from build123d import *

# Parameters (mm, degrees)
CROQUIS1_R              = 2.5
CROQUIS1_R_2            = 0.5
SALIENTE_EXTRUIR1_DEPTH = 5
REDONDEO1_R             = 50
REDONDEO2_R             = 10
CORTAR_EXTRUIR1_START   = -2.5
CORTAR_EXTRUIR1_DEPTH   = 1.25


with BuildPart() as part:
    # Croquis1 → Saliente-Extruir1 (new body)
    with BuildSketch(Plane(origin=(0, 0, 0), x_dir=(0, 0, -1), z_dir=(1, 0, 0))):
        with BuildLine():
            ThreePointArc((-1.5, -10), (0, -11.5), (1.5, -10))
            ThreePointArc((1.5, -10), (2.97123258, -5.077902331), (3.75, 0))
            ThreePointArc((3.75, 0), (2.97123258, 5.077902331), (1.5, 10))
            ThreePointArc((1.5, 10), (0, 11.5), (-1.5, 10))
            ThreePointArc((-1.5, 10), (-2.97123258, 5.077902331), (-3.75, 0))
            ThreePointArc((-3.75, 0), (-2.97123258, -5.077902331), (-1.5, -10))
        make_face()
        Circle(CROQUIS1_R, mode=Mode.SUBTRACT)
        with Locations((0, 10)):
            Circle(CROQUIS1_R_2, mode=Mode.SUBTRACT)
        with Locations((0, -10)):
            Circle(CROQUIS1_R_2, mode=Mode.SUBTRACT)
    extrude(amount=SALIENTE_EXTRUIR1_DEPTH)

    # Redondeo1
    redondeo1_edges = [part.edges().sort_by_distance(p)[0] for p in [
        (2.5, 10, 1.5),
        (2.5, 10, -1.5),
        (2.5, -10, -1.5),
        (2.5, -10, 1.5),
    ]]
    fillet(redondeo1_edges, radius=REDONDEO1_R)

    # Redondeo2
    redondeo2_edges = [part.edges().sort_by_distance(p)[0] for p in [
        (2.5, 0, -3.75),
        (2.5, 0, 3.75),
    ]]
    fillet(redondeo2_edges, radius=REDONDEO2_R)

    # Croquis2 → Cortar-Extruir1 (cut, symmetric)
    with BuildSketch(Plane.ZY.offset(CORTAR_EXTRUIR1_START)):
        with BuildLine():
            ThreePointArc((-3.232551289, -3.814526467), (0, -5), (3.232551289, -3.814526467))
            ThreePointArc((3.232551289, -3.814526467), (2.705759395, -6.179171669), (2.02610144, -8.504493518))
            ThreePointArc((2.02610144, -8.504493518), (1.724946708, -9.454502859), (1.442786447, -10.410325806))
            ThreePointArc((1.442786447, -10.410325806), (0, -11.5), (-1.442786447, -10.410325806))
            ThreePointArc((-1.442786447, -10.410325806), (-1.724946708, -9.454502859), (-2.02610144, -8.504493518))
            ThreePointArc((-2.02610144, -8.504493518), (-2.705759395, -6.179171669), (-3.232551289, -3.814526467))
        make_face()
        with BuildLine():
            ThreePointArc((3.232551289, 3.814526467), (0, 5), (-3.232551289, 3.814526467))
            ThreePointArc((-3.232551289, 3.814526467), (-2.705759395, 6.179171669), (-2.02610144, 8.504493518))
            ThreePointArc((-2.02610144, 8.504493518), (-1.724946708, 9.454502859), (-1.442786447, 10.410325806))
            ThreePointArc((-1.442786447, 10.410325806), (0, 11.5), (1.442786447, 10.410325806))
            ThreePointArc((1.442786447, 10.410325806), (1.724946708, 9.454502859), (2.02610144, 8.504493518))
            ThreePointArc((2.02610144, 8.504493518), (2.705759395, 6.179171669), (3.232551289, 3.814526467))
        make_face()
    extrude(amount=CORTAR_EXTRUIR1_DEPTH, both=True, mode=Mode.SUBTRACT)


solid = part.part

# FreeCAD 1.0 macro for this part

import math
import FreeCAD as App
import Part
import Sketcher
Q = App.Units.Quantity


def edges_at(feature, points):
    """Names of the edges that pass closest to the given points."""
    edges = feature.Shape.Edges
    near = lambda p: min(range(len(edges)), key=lambda i: edges[i].distToShape(Part.Vertex(*p))[0])
    return sorted({f"Edge{near(p) + 1}" for p in points})

doc = App.newDocument("Part")
body = doc.addObject("PartDesign::Body", "Body")

# Sketch on YZ plane
sketch1 = body.newObject("Sketcher::SketchObject", "Sketch")
sketch1.AttachmentSupport = (doc.getObject("YZ_Plane"), [""])
sketch1.MapMode = "FlatFace"
sketch1.addGeometry([
    Part.ArcOfCircle(Part.Circle(App.Vector(-10, 0, 0), App.Vector(0, 0, 1), 1.5), math.radians(90), math.radians(270)),  # 0
    Part.ArcOfCircle(Part.Circle(App.Vector(3.084201, 33.304783, 0), App.Vector(0, 0, 1), 37.182916), math.radians(-110.602803), math.radians(-94.757964)),  # 1
    Part.ArcOfCircle(Part.Circle(App.Vector(-3.084201, 33.304783, 0), App.Vector(0, 0, 1), 37.182916), math.radians(-85.242036), math.radians(-69.397197)),  # 2
    Part.ArcOfCircle(Part.Circle(App.Vector(10, 0, 0), App.Vector(0, 0, 1), 1.5), math.radians(-90), math.radians(90)),  # 3
    Part.ArcOfCircle(Part.Circle(App.Vector(-3.084201, -33.304783, 0), App.Vector(0, 0, 1), 37.182916), math.radians(69.397197), math.radians(85.242036)),  # 4
    Part.ArcOfCircle(Part.Circle(App.Vector(3.084201, -33.304783, 0), App.Vector(0, 0, 1), 37.182916), math.radians(94.757964), math.radians(110.602803)),  # 5
    Part.Circle(App.Vector(-10, 0, 0), App.Vector(0, 0, 1), 0.5),  # 6
    Part.Circle(App.Vector(0, 0, 0), App.Vector(0, 0, 1), 2.5),  # 7
    Part.Circle(App.Vector(10, 0, 0), App.Vector(0, 0, 1), 0.5),  # 8
], False)
sketch1.addConstraint([
    Sketcher.Constraint("Coincident", 0, 2, 1, 1),
    Sketcher.Constraint("Coincident", 1, 2, 2, 1),
    Sketcher.Constraint("Coincident", 2, 2, 3, 1),
    Sketcher.Constraint("Coincident", 3, 2, 4, 1),
    Sketcher.Constraint("Coincident", 4, 2, 5, 1),
    Sketcher.Constraint("Coincident", 5, 2, 0, 1),
    Sketcher.Constraint("Coincident", 7, 3, -1, 1),
    Sketcher.Constraint("Coincident", 6, 3, 0, 3),
    Sketcher.Constraint("Coincident", 8, 3, 3, 3),
    Sketcher.Constraint("Equal", 1, 2),
    Sketcher.Constraint("Equal", 0, 3),
    Sketcher.Constraint("Equal", 2, 4),
    Sketcher.Constraint("Equal", 4, 5),
    Sketcher.Constraint("Equal", 6, 8),
    Sketcher.Constraint("Symmetric", 0, 3, 3, 3, -1, 1),
    Sketcher.Constraint("Symmetric", 1, 3, 4, 3, -1, 1),
    Sketcher.Constraint("Symmetric", 2, 3, 5, 3, -1, 1),
    Sketcher.Constraint("Symmetric", 1, 3, 2, 3, -2),
    Sketcher.Constraint("PointOnObject", 0, 3, -1),
    Sketcher.Constraint("Vertical", 6, 3, 0, 2),
    Sketcher.Constraint("Diameter", 6, Q("1 mm")),
    Sketcher.Constraint("Diameter", 7, Q("5 mm")),
    Sketcher.Constraint("Radius", 0, Q("1.5 mm")),
    Sketcher.Constraint("DistanceX", 0, 3, -1, 1, Q("10 mm")),
    Sketcher.Constraint("DistanceY", 1, 2, 4, 2, Q("7.5 mm")),
    Sketcher.Constraint("Radius", 1, Q("37.182916 mm")),
])
pad1 = body.newObject("PartDesign::Pad", "Pad")
pad1.Profile = sketch1
pad1.Length = 5
doc.recompute()

fillet = body.newObject("PartDesign::Fillet", "Fillet")
fillet.Base = (pad1, edges_at(pad1, [
    (2.5, 10, 1.5),
    (2.5, 10, -1.5),
    (2.5, -10, -1.5),
    (2.5, -10, 1.5),
]))
fillet.Radius = 50
doc.recompute()

fillet2 = body.newObject("PartDesign::Fillet", "Fillet001")
fillet2.Base = (fillet, edges_at(fillet, [(2.5, 0, -3.75), (2.5, 0, 3.75)]))
fillet2.Radius = 10

# Sketch on YZ plane
sketch2 = body.newObject("Sketcher::SketchObject", "Sketch001")
sketch2.AttachmentSupport = (doc.getObject("YZ_Plane"), [""])
sketch2.MapMode = "FlatFace"
sketch2.AttachmentOffset = App.Placement(App.Vector(0, 0, 2.5), App.Rotation())
sketch2.addGeometry([
    Part.ArcOfCircle(Part.Circle(App.Vector(0, 0, 0), App.Vector(0, 0, 1), 5), math.radians(139.720996), math.radians(220.279004)),  # 0
    Part.ArcOfCircle(Part.Circle(App.Vector(3.084201, 33.304783, 0), App.Vector(0, 0, 1), 37.182916), math.radians(-108.159731), math.radians(-100.692318)),  # 1
    Part.ArcOfCircle(Part.Circle(App.Vector(-24.087853, -49.535669, 0), App.Vector(0, 0, 1), 50.000002), math.radians(71.840269), math.radians(74.124346)),  # 2
    Part.ArcOfCircle(Part.Circle(App.Vector(-10, 0, 0), App.Vector(0, 0, 1), 1.5), math.radians(105.875654), math.radians(254.124346)),  # 3
    Part.ArcOfCircle(Part.Circle(App.Vector(-24.087853, 49.535669, 0), App.Vector(0, 0, 1), 50.000002), math.radians(-74.124346), math.radians(-71.840269)),  # 4
    Part.ArcOfCircle(Part.Circle(App.Vector(3.084201, -33.304783, 0), App.Vector(0, 0, 1), 37.182916), math.radians(100.692318), math.radians(108.159731)),  # 5
    Part.ArcOfCircle(Part.Circle(App.Vector(0, 0, 0), App.Vector(0, 0, 1), 5), math.radians(-40.279004), math.radians(40.279004)),  # 6
    Part.ArcOfCircle(Part.Circle(App.Vector(-3.084201, -33.304783, 0), App.Vector(0, 0, 1), 37.182916), math.radians(71.840269), math.radians(79.307682)),  # 7
    Part.ArcOfCircle(Part.Circle(App.Vector(24.087853, 49.535669, 0), App.Vector(0, 0, 1), 50.000002), math.radians(-108.159731), math.radians(-105.875654)),  # 8
    Part.ArcOfCircle(Part.Circle(App.Vector(10, 0, 0), App.Vector(0, 0, 1), 1.5), math.radians(-74.124346), math.radians(74.124346)),  # 9
    Part.ArcOfCircle(Part.Circle(App.Vector(24.087853, -49.535669, 0), App.Vector(0, 0, 1), 50.000002), math.radians(105.875654), math.radians(108.159731)),  # 10
    Part.ArcOfCircle(Part.Circle(App.Vector(-3.084201, 33.304783, 0), App.Vector(0, 0, 1), 37.182916), math.radians(-79.307682), math.radians(-71.840269)),  # 11
], False)
sketch2.addConstraint([
    Sketcher.Constraint("Coincident", 0, 2, 1, 2),
    Sketcher.Constraint("Tangent", 1, 1, 2, 1),
    Sketcher.Constraint("Tangent", 2, 2, 3, 2),
    Sketcher.Constraint("Tangent", 3, 1, 4, 1),
    Sketcher.Constraint("Tangent", 4, 2, 5, 2),
    Sketcher.Constraint("Coincident", 5, 1, 0, 1),
    Sketcher.Constraint("Coincident", 6, 2, 7, 2),
    Sketcher.Constraint("Tangent", 7, 1, 8, 1),
    Sketcher.Constraint("Tangent", 8, 2, 9, 2),
    Sketcher.Constraint("Tangent", 9, 1, 10, 1),
    Sketcher.Constraint("Tangent", 10, 2, 11, 2),
    Sketcher.Constraint("Coincident", 11, 1, 6, 1),
    Sketcher.Constraint("Coincident", 0, 3, -1, 1),
    Sketcher.Constraint("Coincident", 6, 3, -1, 1),
    Sketcher.Constraint("Equal", 2, 4),
    Sketcher.Constraint("Equal", 1, 5),
    Sketcher.Constraint("Equal", 0, 6),
    Sketcher.Constraint("Equal", 5, 7),
    Sketcher.Constraint("Equal", 4, 8),
    Sketcher.Constraint("Equal", 3, 9),
    Sketcher.Constraint("Equal", 8, 10),
    Sketcher.Constraint("Equal", 7, 11),
    Sketcher.Constraint("Symmetric", 1, 3, 7, 3, -1, 1),
    Sketcher.Constraint("Symmetric", 3, 3, 9, 3, -1, 1),
    Sketcher.Constraint("Symmetric", 5, 3, 11, 3, -1, 1),
    Sketcher.Constraint("Symmetric", 5, 3, 7, 3, -2),
    Sketcher.Constraint("PointOnObject", 3, 3, -1),
    Sketcher.Constraint("Radius", 0, Q("5 mm")),
    Sketcher.Constraint("Radius", 2, Q("50.000002 mm")),
    Sketcher.Constraint("Radius", 3, Q("1.5 mm")),
    Sketcher.Constraint("DistanceX", 3, 3, -1, 1, Q("10 mm")),
    Sketcher.Constraint("Radius", 1, Q("37.182916 mm")),
    Sketcher.Constraint("DistanceX", -1, 1, 1, 3, Q("3.084201 mm")),
    Sketcher.Constraint("DistanceY", 1, 1, -1, 1, Q("2.026101 mm")),
])
pocket1 = body.newObject("PartDesign::Pocket", "Pocket")
pocket1.Profile = sketch2
pocket1.Length = 2.5
pocket1.Midplane = True

doc.recompute()
